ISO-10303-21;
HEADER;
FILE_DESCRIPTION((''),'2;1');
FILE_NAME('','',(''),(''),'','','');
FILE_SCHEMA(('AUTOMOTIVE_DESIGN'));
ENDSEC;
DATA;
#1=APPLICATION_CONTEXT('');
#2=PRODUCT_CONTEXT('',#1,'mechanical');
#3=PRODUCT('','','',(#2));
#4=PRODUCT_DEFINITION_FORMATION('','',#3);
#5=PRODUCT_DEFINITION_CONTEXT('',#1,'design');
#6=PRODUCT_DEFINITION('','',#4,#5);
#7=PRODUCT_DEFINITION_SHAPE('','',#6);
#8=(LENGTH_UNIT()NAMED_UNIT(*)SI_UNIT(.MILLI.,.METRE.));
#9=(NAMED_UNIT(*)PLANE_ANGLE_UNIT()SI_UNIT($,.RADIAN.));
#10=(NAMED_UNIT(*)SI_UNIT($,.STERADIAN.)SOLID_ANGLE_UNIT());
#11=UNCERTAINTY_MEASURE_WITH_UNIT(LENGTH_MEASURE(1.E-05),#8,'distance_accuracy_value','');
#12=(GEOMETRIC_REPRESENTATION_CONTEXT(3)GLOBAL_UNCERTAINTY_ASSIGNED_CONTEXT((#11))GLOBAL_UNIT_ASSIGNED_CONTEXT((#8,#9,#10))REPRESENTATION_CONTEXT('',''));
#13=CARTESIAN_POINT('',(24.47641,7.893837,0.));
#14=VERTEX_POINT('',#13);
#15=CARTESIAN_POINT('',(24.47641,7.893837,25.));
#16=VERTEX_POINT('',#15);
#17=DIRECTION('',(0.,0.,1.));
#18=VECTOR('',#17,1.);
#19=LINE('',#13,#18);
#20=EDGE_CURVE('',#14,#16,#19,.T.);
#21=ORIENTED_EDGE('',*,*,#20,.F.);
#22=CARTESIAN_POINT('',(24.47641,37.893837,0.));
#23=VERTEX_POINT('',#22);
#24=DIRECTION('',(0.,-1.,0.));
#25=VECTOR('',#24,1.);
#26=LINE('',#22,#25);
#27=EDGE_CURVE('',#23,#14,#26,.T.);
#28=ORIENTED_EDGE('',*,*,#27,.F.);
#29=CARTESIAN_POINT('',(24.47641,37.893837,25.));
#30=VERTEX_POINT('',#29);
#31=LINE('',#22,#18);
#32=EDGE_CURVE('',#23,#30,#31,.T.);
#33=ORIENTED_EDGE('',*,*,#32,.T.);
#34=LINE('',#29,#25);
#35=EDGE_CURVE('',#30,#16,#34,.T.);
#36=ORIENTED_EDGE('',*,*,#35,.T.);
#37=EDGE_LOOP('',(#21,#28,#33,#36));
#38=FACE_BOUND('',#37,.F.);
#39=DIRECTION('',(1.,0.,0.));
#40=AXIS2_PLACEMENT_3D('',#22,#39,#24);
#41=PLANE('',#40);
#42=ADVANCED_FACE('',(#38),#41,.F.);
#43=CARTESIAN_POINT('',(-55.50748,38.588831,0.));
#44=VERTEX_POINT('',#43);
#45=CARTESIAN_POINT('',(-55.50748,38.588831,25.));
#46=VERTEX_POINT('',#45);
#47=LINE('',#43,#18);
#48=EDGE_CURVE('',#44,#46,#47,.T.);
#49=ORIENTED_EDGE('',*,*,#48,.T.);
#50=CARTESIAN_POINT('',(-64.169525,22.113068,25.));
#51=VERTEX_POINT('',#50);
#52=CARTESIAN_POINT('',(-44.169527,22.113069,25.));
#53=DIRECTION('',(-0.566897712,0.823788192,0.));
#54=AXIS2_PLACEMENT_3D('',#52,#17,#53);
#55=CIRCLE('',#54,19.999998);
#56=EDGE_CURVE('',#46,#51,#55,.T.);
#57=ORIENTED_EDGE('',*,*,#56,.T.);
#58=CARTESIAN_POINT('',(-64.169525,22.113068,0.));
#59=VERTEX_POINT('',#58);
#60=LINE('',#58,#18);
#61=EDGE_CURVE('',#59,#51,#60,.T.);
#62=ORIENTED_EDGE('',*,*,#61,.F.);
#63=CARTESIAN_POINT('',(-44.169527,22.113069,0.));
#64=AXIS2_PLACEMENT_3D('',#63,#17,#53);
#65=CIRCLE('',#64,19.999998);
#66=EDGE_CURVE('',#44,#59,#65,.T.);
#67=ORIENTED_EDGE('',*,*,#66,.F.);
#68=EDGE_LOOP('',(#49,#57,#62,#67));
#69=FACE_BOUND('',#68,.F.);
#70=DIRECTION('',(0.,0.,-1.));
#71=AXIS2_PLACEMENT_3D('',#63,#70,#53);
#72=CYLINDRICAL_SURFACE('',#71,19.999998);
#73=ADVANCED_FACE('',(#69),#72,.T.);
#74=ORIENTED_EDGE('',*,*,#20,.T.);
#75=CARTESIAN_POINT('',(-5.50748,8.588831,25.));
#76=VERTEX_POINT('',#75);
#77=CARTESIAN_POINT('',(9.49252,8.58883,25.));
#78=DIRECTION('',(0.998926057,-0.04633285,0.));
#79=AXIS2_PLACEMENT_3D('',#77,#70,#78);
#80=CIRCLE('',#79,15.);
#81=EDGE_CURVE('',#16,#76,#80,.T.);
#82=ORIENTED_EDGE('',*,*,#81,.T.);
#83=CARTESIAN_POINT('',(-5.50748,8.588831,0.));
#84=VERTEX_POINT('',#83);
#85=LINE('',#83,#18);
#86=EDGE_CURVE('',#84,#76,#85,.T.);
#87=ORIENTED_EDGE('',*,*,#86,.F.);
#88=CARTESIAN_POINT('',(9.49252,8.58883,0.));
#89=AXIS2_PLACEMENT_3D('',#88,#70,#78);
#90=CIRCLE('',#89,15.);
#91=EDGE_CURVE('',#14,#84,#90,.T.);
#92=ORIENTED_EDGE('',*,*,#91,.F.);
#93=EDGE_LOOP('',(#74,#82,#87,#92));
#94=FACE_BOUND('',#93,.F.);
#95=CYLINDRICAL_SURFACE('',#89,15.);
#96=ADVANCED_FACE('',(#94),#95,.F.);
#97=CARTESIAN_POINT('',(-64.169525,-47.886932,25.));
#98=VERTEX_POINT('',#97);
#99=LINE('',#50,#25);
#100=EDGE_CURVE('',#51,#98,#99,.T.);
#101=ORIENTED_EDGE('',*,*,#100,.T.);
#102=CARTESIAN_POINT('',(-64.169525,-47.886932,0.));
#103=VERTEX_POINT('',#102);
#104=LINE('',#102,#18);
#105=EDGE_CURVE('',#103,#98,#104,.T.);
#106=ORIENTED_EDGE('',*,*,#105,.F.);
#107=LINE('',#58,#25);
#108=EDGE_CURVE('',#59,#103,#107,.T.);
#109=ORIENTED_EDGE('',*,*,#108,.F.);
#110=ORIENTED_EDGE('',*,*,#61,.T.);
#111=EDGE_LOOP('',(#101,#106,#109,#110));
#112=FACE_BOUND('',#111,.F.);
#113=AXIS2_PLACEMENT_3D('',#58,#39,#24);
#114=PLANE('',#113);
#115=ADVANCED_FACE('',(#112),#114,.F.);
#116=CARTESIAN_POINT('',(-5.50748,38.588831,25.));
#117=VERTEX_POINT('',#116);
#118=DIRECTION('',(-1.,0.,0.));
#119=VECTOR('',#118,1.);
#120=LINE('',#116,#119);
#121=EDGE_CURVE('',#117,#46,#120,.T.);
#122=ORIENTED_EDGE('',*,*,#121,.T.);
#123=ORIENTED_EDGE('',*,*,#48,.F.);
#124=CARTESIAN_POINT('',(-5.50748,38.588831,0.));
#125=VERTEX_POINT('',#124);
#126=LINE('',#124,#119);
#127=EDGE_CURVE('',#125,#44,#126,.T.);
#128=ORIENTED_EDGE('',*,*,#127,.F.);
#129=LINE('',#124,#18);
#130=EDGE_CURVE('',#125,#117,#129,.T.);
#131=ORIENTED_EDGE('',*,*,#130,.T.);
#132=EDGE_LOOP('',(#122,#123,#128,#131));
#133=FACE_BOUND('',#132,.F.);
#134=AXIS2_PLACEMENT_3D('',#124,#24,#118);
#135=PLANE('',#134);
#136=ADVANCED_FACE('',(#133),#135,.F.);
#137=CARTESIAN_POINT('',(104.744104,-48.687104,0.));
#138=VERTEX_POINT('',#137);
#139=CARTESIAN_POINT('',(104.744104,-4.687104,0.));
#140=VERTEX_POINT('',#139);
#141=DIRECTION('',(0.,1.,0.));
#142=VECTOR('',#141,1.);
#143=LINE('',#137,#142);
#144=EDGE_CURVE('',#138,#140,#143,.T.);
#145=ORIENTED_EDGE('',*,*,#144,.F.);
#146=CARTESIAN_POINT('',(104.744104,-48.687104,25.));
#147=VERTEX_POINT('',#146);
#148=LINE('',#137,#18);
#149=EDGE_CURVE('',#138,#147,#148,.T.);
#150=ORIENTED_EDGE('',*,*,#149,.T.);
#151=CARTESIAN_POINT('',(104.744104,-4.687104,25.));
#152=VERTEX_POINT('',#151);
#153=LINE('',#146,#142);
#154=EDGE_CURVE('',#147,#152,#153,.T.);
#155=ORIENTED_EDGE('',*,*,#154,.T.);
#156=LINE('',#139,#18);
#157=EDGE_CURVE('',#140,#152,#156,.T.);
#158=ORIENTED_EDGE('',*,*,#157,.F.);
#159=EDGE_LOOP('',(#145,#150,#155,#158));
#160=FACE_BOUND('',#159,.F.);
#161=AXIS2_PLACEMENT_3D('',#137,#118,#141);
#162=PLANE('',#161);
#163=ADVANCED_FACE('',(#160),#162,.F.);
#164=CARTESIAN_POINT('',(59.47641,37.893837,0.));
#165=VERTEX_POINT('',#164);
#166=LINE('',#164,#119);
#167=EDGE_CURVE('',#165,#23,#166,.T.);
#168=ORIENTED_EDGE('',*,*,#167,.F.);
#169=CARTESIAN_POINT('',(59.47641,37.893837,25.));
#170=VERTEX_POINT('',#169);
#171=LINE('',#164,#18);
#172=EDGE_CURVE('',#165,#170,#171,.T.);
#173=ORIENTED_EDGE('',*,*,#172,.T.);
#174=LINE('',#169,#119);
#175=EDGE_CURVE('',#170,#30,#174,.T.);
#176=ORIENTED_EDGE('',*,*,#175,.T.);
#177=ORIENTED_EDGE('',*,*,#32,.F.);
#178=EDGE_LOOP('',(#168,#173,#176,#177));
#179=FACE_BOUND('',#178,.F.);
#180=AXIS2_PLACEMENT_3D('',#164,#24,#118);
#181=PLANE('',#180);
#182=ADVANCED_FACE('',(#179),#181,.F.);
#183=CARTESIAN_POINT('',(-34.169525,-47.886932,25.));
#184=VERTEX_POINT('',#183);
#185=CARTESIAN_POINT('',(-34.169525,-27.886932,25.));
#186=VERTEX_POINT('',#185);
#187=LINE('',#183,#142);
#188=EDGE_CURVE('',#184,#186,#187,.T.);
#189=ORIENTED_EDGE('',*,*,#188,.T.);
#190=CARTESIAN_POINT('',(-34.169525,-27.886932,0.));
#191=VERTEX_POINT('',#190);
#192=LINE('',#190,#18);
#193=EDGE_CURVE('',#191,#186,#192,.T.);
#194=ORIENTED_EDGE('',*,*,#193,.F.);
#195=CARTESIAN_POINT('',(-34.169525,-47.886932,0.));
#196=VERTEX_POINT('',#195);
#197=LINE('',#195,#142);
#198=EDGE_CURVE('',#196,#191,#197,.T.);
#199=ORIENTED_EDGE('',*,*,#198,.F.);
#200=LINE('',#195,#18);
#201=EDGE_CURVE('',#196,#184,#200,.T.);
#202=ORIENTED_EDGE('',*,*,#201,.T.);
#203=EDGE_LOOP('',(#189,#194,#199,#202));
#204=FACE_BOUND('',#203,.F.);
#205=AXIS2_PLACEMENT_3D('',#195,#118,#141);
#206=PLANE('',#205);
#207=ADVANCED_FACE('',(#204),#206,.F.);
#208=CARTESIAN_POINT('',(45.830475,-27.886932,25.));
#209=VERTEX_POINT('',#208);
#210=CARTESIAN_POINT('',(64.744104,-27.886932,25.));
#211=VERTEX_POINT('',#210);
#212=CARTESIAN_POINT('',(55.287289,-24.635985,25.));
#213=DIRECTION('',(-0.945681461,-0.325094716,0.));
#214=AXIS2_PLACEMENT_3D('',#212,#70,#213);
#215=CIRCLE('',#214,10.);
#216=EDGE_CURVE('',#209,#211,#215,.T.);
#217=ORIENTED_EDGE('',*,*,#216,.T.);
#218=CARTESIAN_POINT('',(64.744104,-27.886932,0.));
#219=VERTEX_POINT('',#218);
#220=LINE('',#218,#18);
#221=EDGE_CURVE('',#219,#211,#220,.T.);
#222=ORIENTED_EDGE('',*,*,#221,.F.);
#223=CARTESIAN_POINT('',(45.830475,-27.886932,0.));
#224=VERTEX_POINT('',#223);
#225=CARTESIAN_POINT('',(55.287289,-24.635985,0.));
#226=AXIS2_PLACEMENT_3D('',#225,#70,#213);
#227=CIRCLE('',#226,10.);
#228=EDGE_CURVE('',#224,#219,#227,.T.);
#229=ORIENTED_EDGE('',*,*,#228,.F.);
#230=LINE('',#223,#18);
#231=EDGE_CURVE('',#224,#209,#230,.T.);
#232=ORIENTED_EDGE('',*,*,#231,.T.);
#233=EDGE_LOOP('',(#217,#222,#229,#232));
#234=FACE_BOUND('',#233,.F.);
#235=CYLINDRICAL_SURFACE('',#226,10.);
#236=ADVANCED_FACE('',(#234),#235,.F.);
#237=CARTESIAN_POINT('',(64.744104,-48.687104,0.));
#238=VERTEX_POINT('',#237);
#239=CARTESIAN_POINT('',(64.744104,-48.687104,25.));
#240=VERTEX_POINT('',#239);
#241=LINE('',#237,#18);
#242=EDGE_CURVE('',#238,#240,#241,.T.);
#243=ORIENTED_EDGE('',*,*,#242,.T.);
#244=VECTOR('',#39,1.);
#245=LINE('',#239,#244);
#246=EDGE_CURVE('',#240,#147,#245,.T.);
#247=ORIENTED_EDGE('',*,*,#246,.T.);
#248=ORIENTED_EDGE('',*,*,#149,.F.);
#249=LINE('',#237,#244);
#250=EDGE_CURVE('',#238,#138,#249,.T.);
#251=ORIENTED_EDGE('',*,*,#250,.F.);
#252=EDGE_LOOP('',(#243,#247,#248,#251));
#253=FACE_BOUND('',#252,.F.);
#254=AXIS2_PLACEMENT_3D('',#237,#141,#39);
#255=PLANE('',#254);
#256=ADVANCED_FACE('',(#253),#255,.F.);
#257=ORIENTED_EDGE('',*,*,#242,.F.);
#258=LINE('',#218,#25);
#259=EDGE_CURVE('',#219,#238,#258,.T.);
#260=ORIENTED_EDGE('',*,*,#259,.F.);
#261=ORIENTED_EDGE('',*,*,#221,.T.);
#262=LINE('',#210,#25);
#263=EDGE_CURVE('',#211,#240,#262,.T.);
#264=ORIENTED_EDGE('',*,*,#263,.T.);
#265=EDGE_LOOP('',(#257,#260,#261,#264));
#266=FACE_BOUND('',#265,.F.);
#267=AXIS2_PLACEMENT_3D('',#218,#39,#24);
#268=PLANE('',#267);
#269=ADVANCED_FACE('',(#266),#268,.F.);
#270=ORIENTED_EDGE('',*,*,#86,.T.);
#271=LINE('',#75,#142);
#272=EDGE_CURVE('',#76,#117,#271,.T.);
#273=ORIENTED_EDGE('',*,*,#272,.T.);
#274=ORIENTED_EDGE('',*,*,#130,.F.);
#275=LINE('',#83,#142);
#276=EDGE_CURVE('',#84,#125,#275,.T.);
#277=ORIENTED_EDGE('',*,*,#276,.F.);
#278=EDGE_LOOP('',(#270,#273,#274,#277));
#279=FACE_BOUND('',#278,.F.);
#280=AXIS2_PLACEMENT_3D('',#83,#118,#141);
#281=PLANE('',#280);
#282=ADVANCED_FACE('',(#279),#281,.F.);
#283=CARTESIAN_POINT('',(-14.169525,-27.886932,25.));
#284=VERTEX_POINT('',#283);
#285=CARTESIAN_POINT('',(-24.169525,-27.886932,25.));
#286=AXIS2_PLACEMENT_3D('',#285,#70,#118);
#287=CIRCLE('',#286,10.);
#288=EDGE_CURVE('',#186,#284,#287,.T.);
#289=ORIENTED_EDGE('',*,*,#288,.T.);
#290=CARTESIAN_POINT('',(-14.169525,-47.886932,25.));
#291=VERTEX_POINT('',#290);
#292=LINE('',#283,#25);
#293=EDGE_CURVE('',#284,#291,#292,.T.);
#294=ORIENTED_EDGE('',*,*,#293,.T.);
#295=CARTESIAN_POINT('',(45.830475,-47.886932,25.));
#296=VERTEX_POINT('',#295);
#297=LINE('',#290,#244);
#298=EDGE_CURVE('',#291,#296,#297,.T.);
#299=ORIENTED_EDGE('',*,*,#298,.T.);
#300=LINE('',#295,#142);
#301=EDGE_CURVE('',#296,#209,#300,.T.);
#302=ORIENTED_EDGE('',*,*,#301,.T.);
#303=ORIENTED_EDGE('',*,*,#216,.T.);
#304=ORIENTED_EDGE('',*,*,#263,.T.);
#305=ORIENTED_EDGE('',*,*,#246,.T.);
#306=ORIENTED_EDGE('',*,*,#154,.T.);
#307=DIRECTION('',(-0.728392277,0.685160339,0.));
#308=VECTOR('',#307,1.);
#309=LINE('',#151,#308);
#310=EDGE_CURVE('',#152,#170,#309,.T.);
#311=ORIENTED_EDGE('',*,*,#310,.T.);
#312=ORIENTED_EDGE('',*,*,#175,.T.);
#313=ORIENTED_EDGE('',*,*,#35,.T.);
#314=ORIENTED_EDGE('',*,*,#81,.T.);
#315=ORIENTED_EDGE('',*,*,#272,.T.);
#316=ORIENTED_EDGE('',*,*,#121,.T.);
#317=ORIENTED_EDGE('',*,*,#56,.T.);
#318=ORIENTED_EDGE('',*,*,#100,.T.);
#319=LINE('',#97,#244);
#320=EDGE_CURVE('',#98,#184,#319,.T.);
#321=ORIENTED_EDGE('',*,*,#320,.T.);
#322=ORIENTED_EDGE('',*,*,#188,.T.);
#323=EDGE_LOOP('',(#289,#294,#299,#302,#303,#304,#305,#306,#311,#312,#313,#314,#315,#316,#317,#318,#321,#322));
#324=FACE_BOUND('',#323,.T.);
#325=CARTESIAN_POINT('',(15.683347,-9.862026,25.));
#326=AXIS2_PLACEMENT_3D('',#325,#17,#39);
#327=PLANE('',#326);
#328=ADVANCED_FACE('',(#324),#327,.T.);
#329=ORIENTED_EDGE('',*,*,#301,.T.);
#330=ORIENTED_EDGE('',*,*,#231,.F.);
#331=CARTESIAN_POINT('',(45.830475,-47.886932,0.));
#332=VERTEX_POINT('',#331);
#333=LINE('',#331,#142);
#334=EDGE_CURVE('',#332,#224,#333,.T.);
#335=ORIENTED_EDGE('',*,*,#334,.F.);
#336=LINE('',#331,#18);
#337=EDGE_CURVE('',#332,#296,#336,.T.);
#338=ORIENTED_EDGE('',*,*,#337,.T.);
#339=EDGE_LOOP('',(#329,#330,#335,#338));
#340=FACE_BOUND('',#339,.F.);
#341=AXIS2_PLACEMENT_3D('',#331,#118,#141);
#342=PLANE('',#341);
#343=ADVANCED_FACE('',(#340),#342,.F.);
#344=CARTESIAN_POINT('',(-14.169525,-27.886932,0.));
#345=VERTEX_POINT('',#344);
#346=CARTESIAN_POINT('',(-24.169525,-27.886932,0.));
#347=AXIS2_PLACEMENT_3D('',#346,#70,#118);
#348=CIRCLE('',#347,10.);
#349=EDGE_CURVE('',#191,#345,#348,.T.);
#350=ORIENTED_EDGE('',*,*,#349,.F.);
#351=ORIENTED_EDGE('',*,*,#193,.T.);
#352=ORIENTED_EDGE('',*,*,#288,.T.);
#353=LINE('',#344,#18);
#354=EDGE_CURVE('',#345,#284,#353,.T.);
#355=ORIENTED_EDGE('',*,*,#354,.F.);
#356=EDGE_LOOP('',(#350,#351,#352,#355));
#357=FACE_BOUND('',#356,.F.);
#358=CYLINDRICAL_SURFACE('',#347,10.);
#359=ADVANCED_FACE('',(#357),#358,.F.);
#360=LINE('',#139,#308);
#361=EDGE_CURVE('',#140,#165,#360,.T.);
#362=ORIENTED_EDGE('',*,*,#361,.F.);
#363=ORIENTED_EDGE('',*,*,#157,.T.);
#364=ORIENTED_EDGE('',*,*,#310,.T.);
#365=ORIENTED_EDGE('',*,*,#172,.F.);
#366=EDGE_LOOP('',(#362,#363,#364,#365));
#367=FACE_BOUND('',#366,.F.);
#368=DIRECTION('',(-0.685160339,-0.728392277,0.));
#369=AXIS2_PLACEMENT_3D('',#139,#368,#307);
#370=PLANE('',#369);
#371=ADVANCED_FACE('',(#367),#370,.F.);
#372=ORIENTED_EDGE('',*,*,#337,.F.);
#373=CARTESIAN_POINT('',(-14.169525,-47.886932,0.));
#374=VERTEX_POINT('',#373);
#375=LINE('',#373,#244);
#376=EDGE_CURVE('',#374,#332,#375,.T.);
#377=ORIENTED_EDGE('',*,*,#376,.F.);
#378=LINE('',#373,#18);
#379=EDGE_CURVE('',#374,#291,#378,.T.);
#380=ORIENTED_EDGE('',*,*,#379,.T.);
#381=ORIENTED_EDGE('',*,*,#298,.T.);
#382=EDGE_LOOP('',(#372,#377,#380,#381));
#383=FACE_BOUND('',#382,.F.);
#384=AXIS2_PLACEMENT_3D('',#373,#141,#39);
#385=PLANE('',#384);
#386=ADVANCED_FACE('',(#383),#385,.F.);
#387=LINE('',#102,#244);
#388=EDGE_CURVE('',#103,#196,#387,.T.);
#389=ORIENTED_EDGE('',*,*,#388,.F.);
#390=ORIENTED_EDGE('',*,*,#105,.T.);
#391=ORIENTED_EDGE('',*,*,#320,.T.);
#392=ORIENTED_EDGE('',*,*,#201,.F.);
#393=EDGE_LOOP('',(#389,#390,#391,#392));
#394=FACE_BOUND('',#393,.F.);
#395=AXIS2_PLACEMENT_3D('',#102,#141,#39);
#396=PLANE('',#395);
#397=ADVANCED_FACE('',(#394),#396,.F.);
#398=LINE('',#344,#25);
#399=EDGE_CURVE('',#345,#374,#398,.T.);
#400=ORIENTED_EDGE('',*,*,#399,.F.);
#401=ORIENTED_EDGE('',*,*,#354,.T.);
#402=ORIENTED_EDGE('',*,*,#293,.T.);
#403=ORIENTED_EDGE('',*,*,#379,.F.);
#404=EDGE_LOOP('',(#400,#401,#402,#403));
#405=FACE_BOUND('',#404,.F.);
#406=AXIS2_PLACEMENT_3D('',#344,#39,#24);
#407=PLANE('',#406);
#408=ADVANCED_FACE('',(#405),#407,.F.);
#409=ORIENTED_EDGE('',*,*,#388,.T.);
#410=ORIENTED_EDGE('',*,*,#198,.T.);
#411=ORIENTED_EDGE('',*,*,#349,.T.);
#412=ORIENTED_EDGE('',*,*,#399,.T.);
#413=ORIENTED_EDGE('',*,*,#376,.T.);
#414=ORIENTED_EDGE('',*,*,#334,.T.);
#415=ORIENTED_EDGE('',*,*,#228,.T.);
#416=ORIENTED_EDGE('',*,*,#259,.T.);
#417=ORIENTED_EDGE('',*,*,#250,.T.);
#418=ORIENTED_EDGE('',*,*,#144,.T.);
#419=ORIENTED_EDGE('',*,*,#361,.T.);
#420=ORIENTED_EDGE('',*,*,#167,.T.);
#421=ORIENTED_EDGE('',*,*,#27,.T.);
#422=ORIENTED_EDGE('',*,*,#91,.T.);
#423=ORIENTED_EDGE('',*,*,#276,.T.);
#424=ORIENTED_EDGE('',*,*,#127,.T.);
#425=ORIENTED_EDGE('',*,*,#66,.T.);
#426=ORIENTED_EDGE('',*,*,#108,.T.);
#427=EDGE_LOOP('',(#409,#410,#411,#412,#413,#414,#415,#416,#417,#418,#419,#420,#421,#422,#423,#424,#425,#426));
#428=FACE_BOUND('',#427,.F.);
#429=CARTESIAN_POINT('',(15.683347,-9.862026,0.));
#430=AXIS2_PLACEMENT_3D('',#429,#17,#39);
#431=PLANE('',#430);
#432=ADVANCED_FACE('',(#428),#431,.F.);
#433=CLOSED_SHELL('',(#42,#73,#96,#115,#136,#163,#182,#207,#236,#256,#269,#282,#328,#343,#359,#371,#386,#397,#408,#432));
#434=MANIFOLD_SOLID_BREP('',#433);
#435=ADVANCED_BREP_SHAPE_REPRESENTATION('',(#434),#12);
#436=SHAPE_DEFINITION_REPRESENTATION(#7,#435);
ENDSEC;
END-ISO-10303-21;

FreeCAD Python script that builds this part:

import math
import FreeCAD as App
import Part
import Sketcher
from FreeCAD import Vector

doc = App.newDocument("Part")
params = doc.addObject("Spreadsheet::Sheet", "Params")
for row, (alias, value) in enumerate([
    ("sketch1_radius", "10 mm"),
    ("sketch1_radius2", "15 mm"),
    ("sketch1_radius3", "19.999998 mm"),
    ("sketch1_width", "30 mm"),
    ("sketch1_width2", "60 mm"),
    ("pad1_length", "25 mm"),
], start=1):
    params.set(f"A{row}", alias)
    params.set(f"B{row}", "=" + value)
    params.setAlias(f"B{row}", alias)

body = doc.addObject("PartDesign::Body", "Body")

sketch1 = body.newObject("Sketcher::SketchObject", "Sketch")
sketch1.AttachmentSupport = (doc.getObject("XY_Plane"), [""])
sketch1.MapMode = "FlatFace"
sketch1.addGeometry(Part.LineSegment(Vector(-64, 22, 0), Vector(-64, -48, 0)), False)
sketch1.addGeometry(Part.LineSegment(Vector(-64, -48, 0), Vector(-34, -48, 0)), False)
sketch1.addGeometry(Part.LineSegment(Vector(-34, -48, 0), Vector(-34, -28, 0)), False)
sketch1.addGeometry(Part.ArcOfCircle(Part.Circle(Vector(-24, -28, 0), Vector(0, 0, 1), 10), math.radians(0), math.radians(180)), False)
sketch1.addGeometry(Part.LineSegment(Vector(-14, -28, 0), Vector(-14, -48, 0)), False)
sketch1.addGeometry(Part.LineSegment(Vector(-14, -48, 0), Vector(46, -48, 0)), False)
sketch1.addGeometry(Part.LineSegment(Vector(46, -48, 0), Vector(46, -28, 0)), False)
sketch1.addGeometry(Part.ArcOfCircle(Part.Circle(Vector(55, -25, 0), Vector(0, 0, 1), 10), math.radians(-19), math.radians(199)), False)
sketch1.addGeometry(Part.LineSegment(Vector(65, -28, 0), Vector(65, -49, 0)), False)
sketch1.addGeometry(Part.LineSegment(Vector(65, -49, 0), Vector(105, -49, 0)), False)
sketch1.addGeometry(Part.LineSegment(Vector(105, -49, 0), Vector(105, -5, 0)), False)
sketch1.addGeometry(Part.LineSegment(Vector(105, -5, 0), Vector(59, 38, 0)), False)
sketch1.addGeometry(Part.LineSegment(Vector(59, 38, 0), Vector(24, 38, 0)), False)
sketch1.addGeometry(Part.LineSegment(Vector(24, 38, 0), Vector(24, 8, 0)), False)
sketch1.addGeometry(Part.ArcOfCircle(Part.Circle(Vector(9, 9, 0), Vector(0, 0, 1), 15), math.radians(180), math.radians(357)), False)
sketch1.addGeometry(Part.LineSegment(Vector(-6, 9, 0), Vector(-6, 39, 0)), False)
sketch1.addGeometry(Part.LineSegment(Vector(-6, 39, 0), Vector(-56, 39, 0)), False)
sketch1.addGeometry(Part.ArcOfCircle(Part.Circle(Vector(-44, 22, 0), Vector(0, 0, 1), 20), math.radians(125), math.radians(180)), False)
sketch1.addConstraint(Sketcher.Constraint("Coincident", 0, 2, 1, 1))
sketch1.addConstraint(Sketcher.Constraint("Coincident", 1, 2, 2, 1))
sketch1.addConstraint(Sketcher.Constraint("Tangent", 2, 2, 3, 2))
sketch1.addConstraint(Sketcher.Constraint("Tangent", 3, 1, 4, 1))
sketch1.addConstraint(Sketcher.Constraint("Coincident", 4, 2, 5, 1))
sketch1.addConstraint(Sketcher.Constraint("Coincident", 5, 2, 6, 1))
sketch1.addConstraint(Sketcher.Constraint("Coincident", 6, 2, 7, 2))
sketch1.addConstraint(Sketcher.Constraint("Coincident", 7, 1, 8, 1))
sketch1.addConstraint(Sketcher.Constraint("Coincident", 8, 2, 9, 1))
sketch1.addConstraint(Sketcher.Constraint("Coincident", 9, 2, 10, 1))
sketch1.addConstraint(Sketcher.Constraint("Coincident", 10, 2, 11, 1))
sketch1.addConstraint(Sketcher.Constraint("Coincident", 11, 2, 12, 1))
sketch1.addConstraint(Sketcher.Constraint("Coincident", 12, 2, 13, 1))
sketch1.addConstraint(Sketcher.Constraint("Coincident", 13, 2, 14, 2))
sketch1.addConstraint(Sketcher.Constraint("Tangent", 14, 1, 15, 1))
sketch1.addConstraint(Sketcher.Constraint("Coincident", 15, 2, 16, 1))
sketch1.addConstraint(Sketcher.Constraint("Coincident", 16, 2, 17, 1))
sketch1.addConstraint(Sketcher.Constraint("Tangent", 17, 2, 0, 1))
sketch1.addConstraint(Sketcher.Constraint("Vertical", 0))
sketch1.addConstraint(Sketcher.Constraint("Horizontal", 1))
sketch1.addConstraint(Sketcher.Constraint("Vertical", 2))
sketch1.addConstraint(Sketcher.Constraint("Vertical", 4))
sketch1.addConstraint(Sketcher.Constraint("Horizontal", 5))
sketch1.addConstraint(Sketcher.Constraint("Vertical", 6))
sketch1.addConstraint(Sketcher.Constraint("Vertical", 8))
sketch1.addConstraint(Sketcher.Constraint("Horizontal", 9))
sketch1.addConstraint(Sketcher.Constraint("Vertical", 10))
sketch1.addConstraint(Sketcher.Constraint("Horizontal", 12))
sketch1.addConstraint(Sketcher.Constraint("Vertical", 13))
sketch1.addConstraint(Sketcher.Constraint("Vertical", 15))
sketch1.addConstraint(Sketcher.Constraint("Horizontal", 16))
sketch1.addConstraint(Sketcher.Constraint("Equal", 3, 7))
sketch1.addConstraint(Sketcher.Constraint("Horizontal", 1, 2, 4, 2))
sketch1.addConstraint(Sketcher.Constraint("Horizontal", 3, 1, 6, 2))
sketch1.addConstraint(Sketcher.Constraint("Horizontal", 6, 2, 7, 1))
sketch1.addConstraint(Sketcher.Constraint("Equal", 1, 13))
sketch1.addConstraint(Sketcher.Constraint("Equal", 13, 15))
sketch1.addConstraint(Sketcher.Constraint("Radius", 3, 10.0))
sketch1.addConstraint(Sketcher.Constraint("Radius", 14, 15.0))
sketch1.addConstraint(Sketcher.Constraint("Radius", 17, 19.999998))
sketch1.addConstraint(Sketcher.Constraint("DistanceX", 1, 1, 1, 2, 30.0))
sketch1.addConstraint(Sketcher.Constraint("DistanceX", 5, 1, 5, 2, 60.0))
sketch1.addConstraint(Sketcher.Constraint("DistanceX", 9, 1, 9, 2, 40.0))
sketch1.addConstraint(Sketcher.Constraint("DistanceX", 12, 2, 12, 1, 35.0))
sketch1.addConstraint(Sketcher.Constraint("DistanceX", 16, 2, 16, 1, 50.0))
sketch1.addConstraint(Sketcher.Constraint("DistanceY", 0, 2, 0, 1, 70.0))
sketch1.addConstraint(Sketcher.Constraint("DistanceY", 2, 1, 2, 2, 20.0))
sketch1.addConstraint(Sketcher.Constraint("DistanceY", 10, 1, 10, 2, 44.0))
sketch1.addConstraint(Sketcher.Constraint("DistanceY", 8, 2, 8, 1, 20.800172))
sketch1.addConstraint(Sketcher.Constraint("Distance", 11, 62.147411))
sketch1.addConstraint(Sketcher.Constraint("DistanceX", -1, 1, 7, 3, 55.287289))
sketch1.addConstraint(Sketcher.Constraint("DistanceX", -1, 1, 14, 3, 9.49252))
sketch1.addConstraint(Sketcher.Constraint("DistanceY", -1, 1, 14, 3, 8.58883))
sketch1.addConstraint(Sketcher.Constraint("DistanceY", -1, 1, 17, 3, 22.113069))
sketch1.setExpression("Constraints[37]", "Params.sketch1_radius")
sketch1.setExpression("Constraints[38]", "Params.sketch1_radius2")
sketch1.setExpression("Constraints[39]", "Params.sketch1_radius3")
sketch1.setExpression("Constraints[40]", "Params.sketch1_width")
sketch1.setExpression("Constraints[41]", "Params.sketch1_width2")
pad1 = body.newObject("PartDesign::Pad", "Pad")
pad1.Profile = sketch1
pad1.setExpression("Length", "Params.pad1_length")

doc.recompute()
